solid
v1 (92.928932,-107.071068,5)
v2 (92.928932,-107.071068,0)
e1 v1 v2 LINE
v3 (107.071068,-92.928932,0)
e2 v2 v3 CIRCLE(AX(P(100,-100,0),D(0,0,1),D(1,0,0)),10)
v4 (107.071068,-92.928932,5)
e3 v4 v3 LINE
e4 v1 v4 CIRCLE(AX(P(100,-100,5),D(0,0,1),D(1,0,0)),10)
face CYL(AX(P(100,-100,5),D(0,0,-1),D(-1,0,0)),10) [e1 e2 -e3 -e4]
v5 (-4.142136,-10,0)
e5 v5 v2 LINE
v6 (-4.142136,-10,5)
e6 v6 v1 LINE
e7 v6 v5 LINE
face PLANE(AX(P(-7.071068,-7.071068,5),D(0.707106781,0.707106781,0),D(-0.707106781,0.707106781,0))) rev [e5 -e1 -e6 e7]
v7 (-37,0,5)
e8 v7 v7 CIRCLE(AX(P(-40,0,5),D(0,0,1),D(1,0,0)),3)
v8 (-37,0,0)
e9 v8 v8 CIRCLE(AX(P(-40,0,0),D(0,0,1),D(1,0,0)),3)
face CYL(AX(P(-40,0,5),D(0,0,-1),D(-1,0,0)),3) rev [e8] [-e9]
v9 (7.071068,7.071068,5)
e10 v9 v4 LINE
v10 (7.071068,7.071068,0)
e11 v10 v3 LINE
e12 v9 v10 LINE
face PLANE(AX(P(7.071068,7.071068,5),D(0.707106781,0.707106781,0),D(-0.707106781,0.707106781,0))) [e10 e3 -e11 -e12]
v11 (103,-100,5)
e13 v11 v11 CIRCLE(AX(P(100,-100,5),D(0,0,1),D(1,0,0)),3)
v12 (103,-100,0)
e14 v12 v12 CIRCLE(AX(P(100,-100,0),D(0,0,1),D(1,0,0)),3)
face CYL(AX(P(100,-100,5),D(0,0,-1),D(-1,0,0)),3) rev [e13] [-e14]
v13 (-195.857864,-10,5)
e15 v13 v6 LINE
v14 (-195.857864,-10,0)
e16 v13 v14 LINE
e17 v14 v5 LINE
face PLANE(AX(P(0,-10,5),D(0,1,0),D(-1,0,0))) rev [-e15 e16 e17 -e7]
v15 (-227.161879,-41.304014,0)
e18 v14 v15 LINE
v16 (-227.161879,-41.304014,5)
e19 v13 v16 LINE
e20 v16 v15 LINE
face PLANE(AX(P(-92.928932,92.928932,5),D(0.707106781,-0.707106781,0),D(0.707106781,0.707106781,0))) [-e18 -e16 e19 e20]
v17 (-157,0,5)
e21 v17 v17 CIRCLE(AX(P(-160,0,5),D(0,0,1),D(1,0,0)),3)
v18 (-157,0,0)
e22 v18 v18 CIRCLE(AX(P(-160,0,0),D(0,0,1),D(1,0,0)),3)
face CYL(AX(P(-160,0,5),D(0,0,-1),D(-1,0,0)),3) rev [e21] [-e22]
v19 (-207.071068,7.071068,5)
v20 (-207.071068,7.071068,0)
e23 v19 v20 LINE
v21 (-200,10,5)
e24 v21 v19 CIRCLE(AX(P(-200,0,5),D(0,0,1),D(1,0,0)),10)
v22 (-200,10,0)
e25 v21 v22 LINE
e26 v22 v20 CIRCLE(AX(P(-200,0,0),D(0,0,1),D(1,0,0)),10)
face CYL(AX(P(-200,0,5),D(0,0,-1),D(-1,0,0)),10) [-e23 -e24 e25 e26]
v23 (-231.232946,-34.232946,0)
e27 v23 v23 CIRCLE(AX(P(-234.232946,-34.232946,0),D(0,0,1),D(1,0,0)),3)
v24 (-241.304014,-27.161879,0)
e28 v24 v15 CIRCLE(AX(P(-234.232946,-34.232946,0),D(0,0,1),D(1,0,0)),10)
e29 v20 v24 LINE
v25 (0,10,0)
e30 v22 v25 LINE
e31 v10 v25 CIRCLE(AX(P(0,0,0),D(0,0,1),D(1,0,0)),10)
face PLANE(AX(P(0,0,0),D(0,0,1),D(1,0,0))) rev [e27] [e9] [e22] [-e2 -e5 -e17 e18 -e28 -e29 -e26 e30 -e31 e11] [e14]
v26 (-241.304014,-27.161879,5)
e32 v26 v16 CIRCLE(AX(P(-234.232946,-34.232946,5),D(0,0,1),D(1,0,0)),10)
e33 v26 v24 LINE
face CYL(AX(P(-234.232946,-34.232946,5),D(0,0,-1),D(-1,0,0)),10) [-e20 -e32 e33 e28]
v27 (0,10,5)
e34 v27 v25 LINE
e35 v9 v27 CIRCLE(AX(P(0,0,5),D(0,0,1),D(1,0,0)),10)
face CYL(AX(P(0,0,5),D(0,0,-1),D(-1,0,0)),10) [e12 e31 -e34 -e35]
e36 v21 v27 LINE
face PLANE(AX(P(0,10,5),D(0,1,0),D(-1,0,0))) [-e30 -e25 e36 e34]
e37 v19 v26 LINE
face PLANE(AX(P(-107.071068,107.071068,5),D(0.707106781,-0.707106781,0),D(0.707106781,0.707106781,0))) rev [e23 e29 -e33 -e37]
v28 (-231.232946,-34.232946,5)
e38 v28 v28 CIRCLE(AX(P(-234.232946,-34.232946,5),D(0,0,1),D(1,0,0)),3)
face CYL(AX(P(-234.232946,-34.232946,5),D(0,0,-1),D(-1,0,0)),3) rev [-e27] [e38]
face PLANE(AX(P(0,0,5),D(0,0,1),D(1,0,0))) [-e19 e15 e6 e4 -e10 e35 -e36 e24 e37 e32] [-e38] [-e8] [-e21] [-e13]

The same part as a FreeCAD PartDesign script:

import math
import FreeCAD as App
import Part
import Sketcher
Q = App.Units.Quantity

doc = App.newDocument("Part")
body = doc.addObject("PartDesign::Body", "Body")

sketch1 = doc.addObject("Sketcher::SketchObject", "Sketch")
body.addObject(sketch1)
sketch1.AttachmentSupport = (doc.XY_Plane, [""])
sketch1.MapMode = "FlatFace"
sketch1.addGeometry([
    Part.LineSegment(App.Vector(-227.161879, -41.304014, 0), App.Vector(-195.857864, -10, 0)),
    Part.LineSegment(App.Vector(-195.857864, -10, 0), App.Vector(-4.142136, -10, 0)),
    Part.LineSegment(App.Vector(-4.142136, -10, 0), App.Vector(92.928932, -107.071068, 0)),
    Part.ArcOfCircle(Part.Circle(App.Vector(100, -100, 0), App.Vector(0, 0, 1), 10), math.radians(-135), math.radians(45)),
    Part.LineSegment(App.Vector(107.071068, -92.928932, 0), App.Vector(7.071068, 7.071068, 0)),
    Part.ArcOfCircle(Part.Circle(App.Vector(0, 0, 0), App.Vector(0, 0, 1), 10), math.radians(45), math.radians(90)),
    Part.LineSegment(App.Vector(0, 10, 0), App.Vector(-200, 10, 0)),
    Part.ArcOfCircle(Part.Circle(App.Vector(-200, 0, 0), App.Vector(0, 0, 1), 10), math.radians(90), math.radians(135)),
    Part.LineSegment(App.Vector(-207.071068, 7.071068, 0), App.Vector(-241.304014, -27.161879, 0)),
    Part.ArcOfCircle(Part.Circle(App.Vector(-234.232946, -34.232946, 0), App.Vector(0, 0, 1), 10), math.radians(135), math.radians(315)),
    Part.Circle(App.Vector(100, -100, 0), App.Vector(0, 0, 1), 3),
    Part.Circle(App.Vector(-40, 0, 0), App.Vector(0, 0, 1), 3),
    Part.Circle(App.Vector(-234.232946, -34.232946, 0), App.Vector(0, 0, 1), 3),
    Part.Circle(App.Vector(-160, 0, 0), App.Vector(0, 0, 1), 3),
], False)
sketch1.addConstraint([
    Sketcher.Constraint("Coincident", 0, 2, 1, 1),
    Sketcher.Constraint("Coincident", 1, 2, 2, 1),
    Sketcher.Constraint("Tangent", 2, 2, 3, 1),
    Sketcher.Constraint("Tangent", 3, 2, 4, 1),
    Sketcher.Constraint("Tangent", 4, 2, 5, 1),
    Sketcher.Constraint("Tangent", 5, 2, 6, 1),
    Sketcher.Constraint("Tangent", 6, 2, 7, 1),
    Sketcher.Constraint("Tangent", 7, 2, 8, 1),
    Sketcher.Constraint("Tangent", 8, 2, 9, 1),
    Sketcher.Constraint("Tangent", 9, 2, 0, 1),
    Sketcher.Constraint("Horizontal", 1),
    Sketcher.Constraint("Horizontal", 6),
    Sketcher.Constraint("Coincident", 5, 3, -1, 1),
    Sketcher.Constraint("Coincident", 10, 3, 3, 3),
    Sketcher.Constraint("Coincident", 12, 3, 9, 3),
    Sketcher.Constraint("Equal", 3, 5),
    Sketcher.Constraint("Equal", 5, 7),
    Sketcher.Constraint("Equal", 7, 9),
    Sketcher.Constraint("Equal", 10, 11),
    Sketcher.Constraint("Equal", 11, 12),
    Sketcher.Constraint("Equal", 12, 13),
    Sketcher.Constraint("PointOnObject", 11, 3, -1),
    Sketcher.Constraint("PointOnObject", 13, 3, -1),
    Sketcher.Constraint("Perpendicular", 0, 2),
    Sketcher.Constraint("Parallel", 2, 4),
    Sketcher.Constraint("Perpendicular", 4, 8),
    Sketcher.Constraint("Horizontal", 4, 2, 7, 2),
    Sketcher.Constraint("Diameter", 10, Q("6 mm")),
    Sketcher.Constraint("Radius", 3, Q("10 mm")),
    Sketcher.Constraint("DistanceX", 6, 2, 6, 1, Q("200 mm")),
    Sketcher.Constraint("DistanceX", -1, 1, 3, 3, Q("100 mm")),
    Sketcher.Constraint("DistanceX", 11, 3, -1, 1, Q("40 mm")),
    Sketcher.Constraint("DistanceX", 13, 3, -1, 1, Q("160 mm")),
    Sketcher.Constraint("DistanceY", 0, 2, -1, 1, Q("10 mm")),
    Sketcher.Constraint("Distance", 0, Q("44.270561 mm")),
])
pad1 = doc.addObject("PartDesign::Pad", "Pad")
body.addObject(pad1)
pad1.Profile = sketch1
pad1.Length = 5

doc.recompute()
